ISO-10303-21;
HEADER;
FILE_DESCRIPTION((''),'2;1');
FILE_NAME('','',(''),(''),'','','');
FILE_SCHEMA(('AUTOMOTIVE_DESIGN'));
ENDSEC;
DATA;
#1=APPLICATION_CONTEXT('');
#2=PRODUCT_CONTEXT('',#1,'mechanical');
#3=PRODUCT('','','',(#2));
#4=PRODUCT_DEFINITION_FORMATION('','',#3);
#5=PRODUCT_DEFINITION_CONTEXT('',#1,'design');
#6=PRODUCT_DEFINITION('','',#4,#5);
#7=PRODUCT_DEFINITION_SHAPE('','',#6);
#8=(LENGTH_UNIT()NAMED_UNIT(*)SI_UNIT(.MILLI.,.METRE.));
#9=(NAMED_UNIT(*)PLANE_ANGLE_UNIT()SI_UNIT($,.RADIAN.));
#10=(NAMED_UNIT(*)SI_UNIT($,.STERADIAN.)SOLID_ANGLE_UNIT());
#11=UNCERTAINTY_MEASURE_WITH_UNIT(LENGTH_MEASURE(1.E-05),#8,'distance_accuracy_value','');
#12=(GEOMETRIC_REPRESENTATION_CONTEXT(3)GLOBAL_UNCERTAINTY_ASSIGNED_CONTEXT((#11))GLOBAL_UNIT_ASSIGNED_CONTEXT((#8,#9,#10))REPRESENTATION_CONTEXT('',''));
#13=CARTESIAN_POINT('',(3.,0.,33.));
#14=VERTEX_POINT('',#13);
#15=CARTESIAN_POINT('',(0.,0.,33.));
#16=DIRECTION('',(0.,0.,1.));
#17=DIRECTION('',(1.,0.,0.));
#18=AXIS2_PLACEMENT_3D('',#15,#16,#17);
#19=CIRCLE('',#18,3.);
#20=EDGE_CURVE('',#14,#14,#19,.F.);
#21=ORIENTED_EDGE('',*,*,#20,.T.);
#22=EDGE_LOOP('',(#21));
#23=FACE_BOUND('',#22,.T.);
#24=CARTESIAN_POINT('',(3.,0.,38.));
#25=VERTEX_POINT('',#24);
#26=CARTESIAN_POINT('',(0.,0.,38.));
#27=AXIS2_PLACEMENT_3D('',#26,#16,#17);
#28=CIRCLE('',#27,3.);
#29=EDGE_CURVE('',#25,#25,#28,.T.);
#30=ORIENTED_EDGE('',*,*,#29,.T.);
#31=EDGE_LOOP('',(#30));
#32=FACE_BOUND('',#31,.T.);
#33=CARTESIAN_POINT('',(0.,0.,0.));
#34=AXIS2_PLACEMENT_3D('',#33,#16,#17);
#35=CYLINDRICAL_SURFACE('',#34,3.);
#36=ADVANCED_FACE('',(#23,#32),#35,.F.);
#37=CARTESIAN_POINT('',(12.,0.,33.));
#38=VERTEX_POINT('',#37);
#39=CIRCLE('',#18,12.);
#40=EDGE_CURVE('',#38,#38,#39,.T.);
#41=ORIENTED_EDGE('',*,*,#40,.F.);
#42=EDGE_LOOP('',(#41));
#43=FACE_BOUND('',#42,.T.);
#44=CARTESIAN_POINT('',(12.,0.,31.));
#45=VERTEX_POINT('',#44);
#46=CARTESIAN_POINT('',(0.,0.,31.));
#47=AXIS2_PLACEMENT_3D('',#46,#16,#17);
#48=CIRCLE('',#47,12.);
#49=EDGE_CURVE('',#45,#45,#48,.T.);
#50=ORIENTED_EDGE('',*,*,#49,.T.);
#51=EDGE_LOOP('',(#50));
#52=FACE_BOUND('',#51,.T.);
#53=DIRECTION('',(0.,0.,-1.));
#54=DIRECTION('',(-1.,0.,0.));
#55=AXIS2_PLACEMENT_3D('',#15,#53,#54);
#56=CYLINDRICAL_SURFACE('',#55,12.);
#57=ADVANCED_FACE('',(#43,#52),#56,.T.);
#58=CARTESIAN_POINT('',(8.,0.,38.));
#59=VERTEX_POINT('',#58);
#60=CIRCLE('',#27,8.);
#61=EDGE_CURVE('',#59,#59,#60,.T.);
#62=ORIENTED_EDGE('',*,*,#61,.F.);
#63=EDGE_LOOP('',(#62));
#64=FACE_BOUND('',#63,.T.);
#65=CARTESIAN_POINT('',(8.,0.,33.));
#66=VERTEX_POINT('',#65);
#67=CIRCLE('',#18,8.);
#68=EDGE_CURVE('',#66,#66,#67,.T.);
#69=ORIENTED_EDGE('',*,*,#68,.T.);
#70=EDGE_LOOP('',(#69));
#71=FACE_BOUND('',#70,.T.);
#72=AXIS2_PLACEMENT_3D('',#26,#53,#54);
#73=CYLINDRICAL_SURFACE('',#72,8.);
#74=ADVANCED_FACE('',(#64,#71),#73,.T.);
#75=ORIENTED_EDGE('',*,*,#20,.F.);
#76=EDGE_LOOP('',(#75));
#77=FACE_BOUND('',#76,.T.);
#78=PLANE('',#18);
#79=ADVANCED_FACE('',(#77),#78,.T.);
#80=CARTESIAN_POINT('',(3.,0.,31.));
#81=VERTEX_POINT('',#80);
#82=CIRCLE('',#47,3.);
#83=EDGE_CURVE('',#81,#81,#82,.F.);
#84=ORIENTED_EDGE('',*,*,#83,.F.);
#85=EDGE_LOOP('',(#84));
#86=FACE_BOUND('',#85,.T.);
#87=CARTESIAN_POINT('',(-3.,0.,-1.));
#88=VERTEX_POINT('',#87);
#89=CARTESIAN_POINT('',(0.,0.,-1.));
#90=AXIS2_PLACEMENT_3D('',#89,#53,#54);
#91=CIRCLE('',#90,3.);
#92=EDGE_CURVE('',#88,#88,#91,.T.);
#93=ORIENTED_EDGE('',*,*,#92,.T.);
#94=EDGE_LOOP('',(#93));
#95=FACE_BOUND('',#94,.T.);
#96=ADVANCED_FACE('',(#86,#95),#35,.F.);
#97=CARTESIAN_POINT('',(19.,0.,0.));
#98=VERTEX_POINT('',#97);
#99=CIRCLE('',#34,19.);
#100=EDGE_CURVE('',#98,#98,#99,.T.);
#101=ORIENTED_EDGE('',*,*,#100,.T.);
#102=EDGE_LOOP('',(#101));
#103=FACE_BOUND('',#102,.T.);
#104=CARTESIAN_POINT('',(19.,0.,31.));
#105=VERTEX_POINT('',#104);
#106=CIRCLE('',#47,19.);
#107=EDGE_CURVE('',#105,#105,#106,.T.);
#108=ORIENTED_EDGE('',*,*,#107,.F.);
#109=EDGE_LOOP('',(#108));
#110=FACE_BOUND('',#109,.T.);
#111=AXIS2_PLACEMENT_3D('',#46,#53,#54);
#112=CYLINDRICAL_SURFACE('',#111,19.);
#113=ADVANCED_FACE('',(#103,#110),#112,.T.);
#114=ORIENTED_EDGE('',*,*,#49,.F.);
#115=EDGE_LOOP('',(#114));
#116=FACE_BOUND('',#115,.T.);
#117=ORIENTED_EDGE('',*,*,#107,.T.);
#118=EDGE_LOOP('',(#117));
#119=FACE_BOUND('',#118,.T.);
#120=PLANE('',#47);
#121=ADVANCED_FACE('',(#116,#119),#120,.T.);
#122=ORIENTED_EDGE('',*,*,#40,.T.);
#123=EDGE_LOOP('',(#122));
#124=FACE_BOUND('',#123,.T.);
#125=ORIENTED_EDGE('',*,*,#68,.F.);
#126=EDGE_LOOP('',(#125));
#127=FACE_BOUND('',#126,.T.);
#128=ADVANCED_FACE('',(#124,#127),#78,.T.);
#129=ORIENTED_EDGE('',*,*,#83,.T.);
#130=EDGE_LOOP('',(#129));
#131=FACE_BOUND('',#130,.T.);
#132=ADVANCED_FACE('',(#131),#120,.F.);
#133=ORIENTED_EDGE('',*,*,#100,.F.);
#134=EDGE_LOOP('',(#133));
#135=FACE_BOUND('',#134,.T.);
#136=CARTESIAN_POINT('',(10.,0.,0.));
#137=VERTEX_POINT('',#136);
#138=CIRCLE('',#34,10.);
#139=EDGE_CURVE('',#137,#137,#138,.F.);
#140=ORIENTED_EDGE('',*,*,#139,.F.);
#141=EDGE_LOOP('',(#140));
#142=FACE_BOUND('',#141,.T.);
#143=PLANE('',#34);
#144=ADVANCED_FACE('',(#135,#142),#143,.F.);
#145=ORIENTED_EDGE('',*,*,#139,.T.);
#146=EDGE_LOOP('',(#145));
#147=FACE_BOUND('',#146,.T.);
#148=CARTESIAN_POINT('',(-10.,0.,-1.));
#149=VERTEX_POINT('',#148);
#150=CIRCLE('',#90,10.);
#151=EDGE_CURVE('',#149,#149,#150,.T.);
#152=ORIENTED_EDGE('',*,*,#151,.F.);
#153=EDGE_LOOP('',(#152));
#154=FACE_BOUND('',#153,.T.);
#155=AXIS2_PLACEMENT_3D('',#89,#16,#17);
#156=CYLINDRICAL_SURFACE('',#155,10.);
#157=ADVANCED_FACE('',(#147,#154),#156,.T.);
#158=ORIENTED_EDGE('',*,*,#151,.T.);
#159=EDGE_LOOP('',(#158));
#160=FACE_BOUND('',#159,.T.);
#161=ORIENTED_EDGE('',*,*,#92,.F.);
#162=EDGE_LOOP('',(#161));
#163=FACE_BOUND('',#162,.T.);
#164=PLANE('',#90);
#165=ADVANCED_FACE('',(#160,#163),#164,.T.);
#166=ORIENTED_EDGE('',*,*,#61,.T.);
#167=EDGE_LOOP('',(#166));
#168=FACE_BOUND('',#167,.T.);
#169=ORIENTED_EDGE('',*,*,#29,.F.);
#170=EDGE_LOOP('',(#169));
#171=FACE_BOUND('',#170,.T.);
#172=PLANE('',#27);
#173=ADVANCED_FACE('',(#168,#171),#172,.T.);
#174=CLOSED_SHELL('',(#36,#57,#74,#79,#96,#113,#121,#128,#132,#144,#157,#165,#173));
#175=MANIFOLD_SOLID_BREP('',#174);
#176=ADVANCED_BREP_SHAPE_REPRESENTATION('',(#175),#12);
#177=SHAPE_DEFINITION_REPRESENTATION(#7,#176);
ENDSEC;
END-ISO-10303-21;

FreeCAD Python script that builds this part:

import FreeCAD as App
import Part
import Sketcher

V = App.Vector
Q = App.Units.Quantity

doc = App.newDocument("Part")
body = doc.addObject("PartDesign::Body", "Body")

sketch1 = body.newObject("Sketcher::SketchObject", "Sketch")
sketch1.AttachmentSupport = (doc.getObject("XY_Plane"), [""])
sketch1.MapMode = "FlatFace"
sketch1.addGeometry(Part.Circle(V(0, 0, 0), V(0, 0, 1), 19), False)
sketch1.addConstraint(Sketcher.Constraint("Coincident", 0, 3, -1, 1))
sketch1.addConstraint(Sketcher.Constraint("Diameter", 0, Q("38 mm")))
pad1 = body.newObject("PartDesign::Pad", "Pad")
pad1.Profile = sketch1
pad1.Length = 31

sketch2 = body.newObject("Sketcher::SketchObject", "Sketch001")
sketch2.AttachmentSupport = (doc.getObject("XY_Plane"), [""])
sketch2.MapMode = "FlatFace"
sketch2.AttachmentOffset = App.Placement(V(0, 0, 31), App.Rotation())
sketch2.addGeometry(Part.Circle(V(0, 0, 0), V(0, 0, 1), 8), False)
sketch2.addConstraint(Sketcher.Constraint("Coincident", 0, 3, -1, 1))
sketch2.addConstraint(Sketcher.Constraint("Diameter", 0, Q("16 mm")))
pad2 = body.newObject("PartDesign::Pad", "Pad001")
pad2.Profile = sketch2
pad2.Length = 7

sketch3 = body.newObject("Sketcher::SketchObject", "Sketch002")
sketch3.AttachmentSupport = (doc.getObject("XY_Plane"), [""])
sketch3.MapMode = "FlatFace"
sketch3.AttachmentOffset = App.Placement(V(0, 0, 38), App.Rotation())
sketch3.addGeometry(Part.Circle(V(0, 0, 0), V(0, 0, 1), 3), False)
sketch3.addConstraint(Sketcher.Constraint("Coincident", 0, 3, -1, 1))
sketch3.addConstraint(Sketcher.Constraint("Diameter", 0, Q("6 mm")))
pocket1 = body.newObject("PartDesign::Pocket", "Pocket")
pocket1.Profile = sketch3
pocket1.Type = "ThroughAll"

sketch4 = body.newObject("Sketcher::SketchObject", "Sketch003")
sketch4.AttachmentSupport = (doc.getObject("XY_Plane"), [""])
sketch4.MapMode = "FlatFace"
sketch4.AttachmentOffset = App.Placement(V(0, 0, 31), App.Rotation())
sketch4.addGeometry(Part.Circle(V(0, 0, 0), V(0, 0, 1), 12), False)
sketch4.addConstraint(Sketcher.Constraint("Coincident", 0, 3, -1, 1))
sketch4.addConstraint(Sketcher.Constraint("Diameter", 0, Q("24 mm")))
pad3 = body.newObject("PartDesign::Pad", "Pad002")
pad3.Profile = sketch4
pad3.Length = 2

sketch5 = body.newObject("Sketcher::SketchObject", "Sketch004")
sketch5.AttachmentSupport = (doc.getObject("XY_Plane"), [""])
sketch5.MapMode = "FlatFace"
sketch5.addGeometry(Part.Circle(V(0, 0, 0), V(0, 0, 1), 10), False)
sketch5.addGeometry(Part.Circle(V(0, 0, 0), V(0, 0, 1), 3), False)
sketch5.addConstraint(Sketcher.Constraint("Coincident", 0, 3, -1, 1))
sketch5.addConstraint(Sketcher.Constraint("Coincident", 1, 3, -1, 1))
sketch5.addConstraint(Sketcher.Constraint("Diameter", 0, Q("20 mm")))
sketch5.addConstraint(Sketcher.Constraint("Diameter", 1, Q("6 mm")))
pad4 = body.newObject("PartDesign::Pad", "Pad003")
pad4.Profile = sketch5
pad4.Length = 1
pad4.Reversed = True

doc.recompute()
